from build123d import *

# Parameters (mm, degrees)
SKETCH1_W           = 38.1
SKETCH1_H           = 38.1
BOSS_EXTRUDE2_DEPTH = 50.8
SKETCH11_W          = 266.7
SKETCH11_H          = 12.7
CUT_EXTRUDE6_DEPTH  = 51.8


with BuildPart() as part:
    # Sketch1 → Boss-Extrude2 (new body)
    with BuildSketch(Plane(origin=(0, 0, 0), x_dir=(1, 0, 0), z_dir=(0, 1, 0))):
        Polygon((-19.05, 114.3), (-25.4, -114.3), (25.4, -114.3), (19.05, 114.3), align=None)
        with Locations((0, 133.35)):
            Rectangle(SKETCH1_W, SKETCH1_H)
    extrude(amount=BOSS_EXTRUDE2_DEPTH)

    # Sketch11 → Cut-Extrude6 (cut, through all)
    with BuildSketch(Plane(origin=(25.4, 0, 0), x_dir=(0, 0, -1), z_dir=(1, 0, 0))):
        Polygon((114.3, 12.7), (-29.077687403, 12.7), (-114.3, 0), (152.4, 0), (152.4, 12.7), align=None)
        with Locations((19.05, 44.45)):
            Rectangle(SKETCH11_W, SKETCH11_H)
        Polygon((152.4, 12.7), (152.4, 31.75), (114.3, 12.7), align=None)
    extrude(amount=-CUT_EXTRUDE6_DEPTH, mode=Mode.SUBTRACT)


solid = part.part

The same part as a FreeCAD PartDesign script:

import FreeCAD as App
import Part
import Sketcher
Q = App.Units.Quantity


def add_polygon(sketch, points):
    """Adds a closed chain of lines whose ends are joined by coincident constraints."""
    first, n = sketch.GeometryCount, len(points)
    for a, b in zip(points, points[1:] + points[:1]):
        sketch.addGeometry(Part.LineSegment(App.Vector(*a, 0), App.Vector(*b, 0)), False)
    for i in range(n):
        sketch.addConstraint(Sketcher.Constraint("Coincident", first + i, 2, first + (i + 1) % n, 1))

doc = App.newDocument("Part")
body = doc.addObject("PartDesign::Body", "Body")

sketch1 = doc.addObject("Sketcher::SketchObject", "Sketch")
body.addObject(sketch1)
sketch1.AttachmentSupport = (doc.XZ_Plane, [""])
sketch1.MapMode = "FlatFace"
add_polygon(sketch1, [(-19.05, -114.3), (-25.4, 114.3), (25.4, 114.3), (19.05, -114.3), (19.05, -152.4), (-19.05, -152.4)])
sketch1.addConstraint([
    Sketcher.Constraint("Horizontal", 1),
    Sketcher.Constraint("Vertical", 3),
    Sketcher.Constraint("Horizontal", 4),
    Sketcher.Constraint("Vertical", 5),
    Sketcher.Constraint("Symmetric", 2, 2, 5, 2, -2),
    Sketcher.Constraint("Equal", 4, 3),
    Sketcher.Constraint("Equal", 0, 2),
    Sketcher.Constraint("DistanceX", 1, 1, 1, 2, Q("2 in")),
    Sketcher.Constraint("DistanceX", 4, 2, 4, 1, Q("1.5 in")),
    Sketcher.Constraint("DistanceY", 3, 2, -1, 1, Q("6 in")),
    Sketcher.Constraint("DistanceY", 2, 2, 1, 2, Q("9 in")),
])
pad1 = doc.addObject("PartDesign::Pad", "Pad")
body.addObject(pad1)
pad1.Profile = sketch1
pad1.Length = Q("2 in")
pad1.Reversed = True

sketch2 = doc.addObject("Sketcher::SketchObject", "Sketch001")
body.addObject(sketch2)
sketch2.AttachmentSupport = (doc.YZ_Plane, [""])
sketch2.MapMode = "FlatFace"
sketch2.AttachmentOffset = App.Placement(App.Vector(0, 0, 1 * 25.4), App.Rotation())
add_polygon(sketch2, [(12.7, 29.077687), (0, 114.3), (0, -152.4), (31.75, -152.4), (12.7, -114.3)])
add_polygon(sketch2, [(50.8, 114.3), (38.1, 114.3), (38.1, -152.4), (50.8, -152.4)])
sketch2.addConstraint([
    Sketcher.Constraint("Vertical", 1),
    Sketcher.Constraint("Horizontal", 2),
    Sketcher.Constraint("Vertical", 4),
    Sketcher.Constraint("Horizontal", 5),
    Sketcher.Constraint("Vertical", 6),
    Sketcher.Constraint("Horizontal", 7),
    Sketcher.Constraint("Vertical", 8),
    Sketcher.Constraint("PointOnObject", 0, 2, -2),
    Sketcher.Constraint("Horizontal", 0, 2, 5, 2),
    Sketcher.Constraint("Horizontal", 2, 2, 6, 2),
    Sketcher.Constraint("DistanceX", 5, 2, 5, 1, Q("0.5 in")),
    Sketcher.Constraint("DistanceY", 1, 2, 1, 1, Q("10.5 in")),
    Sketcher.Constraint("DistanceY", 1, 2, -1, 1, Q("6 in")),
    Sketcher.Constraint("DistanceX", -1, 1, 7, 2, Q("2 in")),
    Sketcher.Constraint("DistanceY", 3, 2, 0, 2, Q("9 in")),
    Sketcher.Constraint("DistanceX", 4, 2, 5, 2, Q("1 in")),
    Sketcher.Constraint("DistanceX", 2, 1, 2, 2, Q("1.25 in")),
    Sketcher.Constraint("DistanceY", 4, 1, 4, 2, 143.377687),
])
pocket1 = doc.addObject("PartDesign::Pocket", "Pocket")
body.addObject(pocket1)
pocket1.Profile = sketch2
pocket1.Type = "ThroughAll"

doc.recompute()
